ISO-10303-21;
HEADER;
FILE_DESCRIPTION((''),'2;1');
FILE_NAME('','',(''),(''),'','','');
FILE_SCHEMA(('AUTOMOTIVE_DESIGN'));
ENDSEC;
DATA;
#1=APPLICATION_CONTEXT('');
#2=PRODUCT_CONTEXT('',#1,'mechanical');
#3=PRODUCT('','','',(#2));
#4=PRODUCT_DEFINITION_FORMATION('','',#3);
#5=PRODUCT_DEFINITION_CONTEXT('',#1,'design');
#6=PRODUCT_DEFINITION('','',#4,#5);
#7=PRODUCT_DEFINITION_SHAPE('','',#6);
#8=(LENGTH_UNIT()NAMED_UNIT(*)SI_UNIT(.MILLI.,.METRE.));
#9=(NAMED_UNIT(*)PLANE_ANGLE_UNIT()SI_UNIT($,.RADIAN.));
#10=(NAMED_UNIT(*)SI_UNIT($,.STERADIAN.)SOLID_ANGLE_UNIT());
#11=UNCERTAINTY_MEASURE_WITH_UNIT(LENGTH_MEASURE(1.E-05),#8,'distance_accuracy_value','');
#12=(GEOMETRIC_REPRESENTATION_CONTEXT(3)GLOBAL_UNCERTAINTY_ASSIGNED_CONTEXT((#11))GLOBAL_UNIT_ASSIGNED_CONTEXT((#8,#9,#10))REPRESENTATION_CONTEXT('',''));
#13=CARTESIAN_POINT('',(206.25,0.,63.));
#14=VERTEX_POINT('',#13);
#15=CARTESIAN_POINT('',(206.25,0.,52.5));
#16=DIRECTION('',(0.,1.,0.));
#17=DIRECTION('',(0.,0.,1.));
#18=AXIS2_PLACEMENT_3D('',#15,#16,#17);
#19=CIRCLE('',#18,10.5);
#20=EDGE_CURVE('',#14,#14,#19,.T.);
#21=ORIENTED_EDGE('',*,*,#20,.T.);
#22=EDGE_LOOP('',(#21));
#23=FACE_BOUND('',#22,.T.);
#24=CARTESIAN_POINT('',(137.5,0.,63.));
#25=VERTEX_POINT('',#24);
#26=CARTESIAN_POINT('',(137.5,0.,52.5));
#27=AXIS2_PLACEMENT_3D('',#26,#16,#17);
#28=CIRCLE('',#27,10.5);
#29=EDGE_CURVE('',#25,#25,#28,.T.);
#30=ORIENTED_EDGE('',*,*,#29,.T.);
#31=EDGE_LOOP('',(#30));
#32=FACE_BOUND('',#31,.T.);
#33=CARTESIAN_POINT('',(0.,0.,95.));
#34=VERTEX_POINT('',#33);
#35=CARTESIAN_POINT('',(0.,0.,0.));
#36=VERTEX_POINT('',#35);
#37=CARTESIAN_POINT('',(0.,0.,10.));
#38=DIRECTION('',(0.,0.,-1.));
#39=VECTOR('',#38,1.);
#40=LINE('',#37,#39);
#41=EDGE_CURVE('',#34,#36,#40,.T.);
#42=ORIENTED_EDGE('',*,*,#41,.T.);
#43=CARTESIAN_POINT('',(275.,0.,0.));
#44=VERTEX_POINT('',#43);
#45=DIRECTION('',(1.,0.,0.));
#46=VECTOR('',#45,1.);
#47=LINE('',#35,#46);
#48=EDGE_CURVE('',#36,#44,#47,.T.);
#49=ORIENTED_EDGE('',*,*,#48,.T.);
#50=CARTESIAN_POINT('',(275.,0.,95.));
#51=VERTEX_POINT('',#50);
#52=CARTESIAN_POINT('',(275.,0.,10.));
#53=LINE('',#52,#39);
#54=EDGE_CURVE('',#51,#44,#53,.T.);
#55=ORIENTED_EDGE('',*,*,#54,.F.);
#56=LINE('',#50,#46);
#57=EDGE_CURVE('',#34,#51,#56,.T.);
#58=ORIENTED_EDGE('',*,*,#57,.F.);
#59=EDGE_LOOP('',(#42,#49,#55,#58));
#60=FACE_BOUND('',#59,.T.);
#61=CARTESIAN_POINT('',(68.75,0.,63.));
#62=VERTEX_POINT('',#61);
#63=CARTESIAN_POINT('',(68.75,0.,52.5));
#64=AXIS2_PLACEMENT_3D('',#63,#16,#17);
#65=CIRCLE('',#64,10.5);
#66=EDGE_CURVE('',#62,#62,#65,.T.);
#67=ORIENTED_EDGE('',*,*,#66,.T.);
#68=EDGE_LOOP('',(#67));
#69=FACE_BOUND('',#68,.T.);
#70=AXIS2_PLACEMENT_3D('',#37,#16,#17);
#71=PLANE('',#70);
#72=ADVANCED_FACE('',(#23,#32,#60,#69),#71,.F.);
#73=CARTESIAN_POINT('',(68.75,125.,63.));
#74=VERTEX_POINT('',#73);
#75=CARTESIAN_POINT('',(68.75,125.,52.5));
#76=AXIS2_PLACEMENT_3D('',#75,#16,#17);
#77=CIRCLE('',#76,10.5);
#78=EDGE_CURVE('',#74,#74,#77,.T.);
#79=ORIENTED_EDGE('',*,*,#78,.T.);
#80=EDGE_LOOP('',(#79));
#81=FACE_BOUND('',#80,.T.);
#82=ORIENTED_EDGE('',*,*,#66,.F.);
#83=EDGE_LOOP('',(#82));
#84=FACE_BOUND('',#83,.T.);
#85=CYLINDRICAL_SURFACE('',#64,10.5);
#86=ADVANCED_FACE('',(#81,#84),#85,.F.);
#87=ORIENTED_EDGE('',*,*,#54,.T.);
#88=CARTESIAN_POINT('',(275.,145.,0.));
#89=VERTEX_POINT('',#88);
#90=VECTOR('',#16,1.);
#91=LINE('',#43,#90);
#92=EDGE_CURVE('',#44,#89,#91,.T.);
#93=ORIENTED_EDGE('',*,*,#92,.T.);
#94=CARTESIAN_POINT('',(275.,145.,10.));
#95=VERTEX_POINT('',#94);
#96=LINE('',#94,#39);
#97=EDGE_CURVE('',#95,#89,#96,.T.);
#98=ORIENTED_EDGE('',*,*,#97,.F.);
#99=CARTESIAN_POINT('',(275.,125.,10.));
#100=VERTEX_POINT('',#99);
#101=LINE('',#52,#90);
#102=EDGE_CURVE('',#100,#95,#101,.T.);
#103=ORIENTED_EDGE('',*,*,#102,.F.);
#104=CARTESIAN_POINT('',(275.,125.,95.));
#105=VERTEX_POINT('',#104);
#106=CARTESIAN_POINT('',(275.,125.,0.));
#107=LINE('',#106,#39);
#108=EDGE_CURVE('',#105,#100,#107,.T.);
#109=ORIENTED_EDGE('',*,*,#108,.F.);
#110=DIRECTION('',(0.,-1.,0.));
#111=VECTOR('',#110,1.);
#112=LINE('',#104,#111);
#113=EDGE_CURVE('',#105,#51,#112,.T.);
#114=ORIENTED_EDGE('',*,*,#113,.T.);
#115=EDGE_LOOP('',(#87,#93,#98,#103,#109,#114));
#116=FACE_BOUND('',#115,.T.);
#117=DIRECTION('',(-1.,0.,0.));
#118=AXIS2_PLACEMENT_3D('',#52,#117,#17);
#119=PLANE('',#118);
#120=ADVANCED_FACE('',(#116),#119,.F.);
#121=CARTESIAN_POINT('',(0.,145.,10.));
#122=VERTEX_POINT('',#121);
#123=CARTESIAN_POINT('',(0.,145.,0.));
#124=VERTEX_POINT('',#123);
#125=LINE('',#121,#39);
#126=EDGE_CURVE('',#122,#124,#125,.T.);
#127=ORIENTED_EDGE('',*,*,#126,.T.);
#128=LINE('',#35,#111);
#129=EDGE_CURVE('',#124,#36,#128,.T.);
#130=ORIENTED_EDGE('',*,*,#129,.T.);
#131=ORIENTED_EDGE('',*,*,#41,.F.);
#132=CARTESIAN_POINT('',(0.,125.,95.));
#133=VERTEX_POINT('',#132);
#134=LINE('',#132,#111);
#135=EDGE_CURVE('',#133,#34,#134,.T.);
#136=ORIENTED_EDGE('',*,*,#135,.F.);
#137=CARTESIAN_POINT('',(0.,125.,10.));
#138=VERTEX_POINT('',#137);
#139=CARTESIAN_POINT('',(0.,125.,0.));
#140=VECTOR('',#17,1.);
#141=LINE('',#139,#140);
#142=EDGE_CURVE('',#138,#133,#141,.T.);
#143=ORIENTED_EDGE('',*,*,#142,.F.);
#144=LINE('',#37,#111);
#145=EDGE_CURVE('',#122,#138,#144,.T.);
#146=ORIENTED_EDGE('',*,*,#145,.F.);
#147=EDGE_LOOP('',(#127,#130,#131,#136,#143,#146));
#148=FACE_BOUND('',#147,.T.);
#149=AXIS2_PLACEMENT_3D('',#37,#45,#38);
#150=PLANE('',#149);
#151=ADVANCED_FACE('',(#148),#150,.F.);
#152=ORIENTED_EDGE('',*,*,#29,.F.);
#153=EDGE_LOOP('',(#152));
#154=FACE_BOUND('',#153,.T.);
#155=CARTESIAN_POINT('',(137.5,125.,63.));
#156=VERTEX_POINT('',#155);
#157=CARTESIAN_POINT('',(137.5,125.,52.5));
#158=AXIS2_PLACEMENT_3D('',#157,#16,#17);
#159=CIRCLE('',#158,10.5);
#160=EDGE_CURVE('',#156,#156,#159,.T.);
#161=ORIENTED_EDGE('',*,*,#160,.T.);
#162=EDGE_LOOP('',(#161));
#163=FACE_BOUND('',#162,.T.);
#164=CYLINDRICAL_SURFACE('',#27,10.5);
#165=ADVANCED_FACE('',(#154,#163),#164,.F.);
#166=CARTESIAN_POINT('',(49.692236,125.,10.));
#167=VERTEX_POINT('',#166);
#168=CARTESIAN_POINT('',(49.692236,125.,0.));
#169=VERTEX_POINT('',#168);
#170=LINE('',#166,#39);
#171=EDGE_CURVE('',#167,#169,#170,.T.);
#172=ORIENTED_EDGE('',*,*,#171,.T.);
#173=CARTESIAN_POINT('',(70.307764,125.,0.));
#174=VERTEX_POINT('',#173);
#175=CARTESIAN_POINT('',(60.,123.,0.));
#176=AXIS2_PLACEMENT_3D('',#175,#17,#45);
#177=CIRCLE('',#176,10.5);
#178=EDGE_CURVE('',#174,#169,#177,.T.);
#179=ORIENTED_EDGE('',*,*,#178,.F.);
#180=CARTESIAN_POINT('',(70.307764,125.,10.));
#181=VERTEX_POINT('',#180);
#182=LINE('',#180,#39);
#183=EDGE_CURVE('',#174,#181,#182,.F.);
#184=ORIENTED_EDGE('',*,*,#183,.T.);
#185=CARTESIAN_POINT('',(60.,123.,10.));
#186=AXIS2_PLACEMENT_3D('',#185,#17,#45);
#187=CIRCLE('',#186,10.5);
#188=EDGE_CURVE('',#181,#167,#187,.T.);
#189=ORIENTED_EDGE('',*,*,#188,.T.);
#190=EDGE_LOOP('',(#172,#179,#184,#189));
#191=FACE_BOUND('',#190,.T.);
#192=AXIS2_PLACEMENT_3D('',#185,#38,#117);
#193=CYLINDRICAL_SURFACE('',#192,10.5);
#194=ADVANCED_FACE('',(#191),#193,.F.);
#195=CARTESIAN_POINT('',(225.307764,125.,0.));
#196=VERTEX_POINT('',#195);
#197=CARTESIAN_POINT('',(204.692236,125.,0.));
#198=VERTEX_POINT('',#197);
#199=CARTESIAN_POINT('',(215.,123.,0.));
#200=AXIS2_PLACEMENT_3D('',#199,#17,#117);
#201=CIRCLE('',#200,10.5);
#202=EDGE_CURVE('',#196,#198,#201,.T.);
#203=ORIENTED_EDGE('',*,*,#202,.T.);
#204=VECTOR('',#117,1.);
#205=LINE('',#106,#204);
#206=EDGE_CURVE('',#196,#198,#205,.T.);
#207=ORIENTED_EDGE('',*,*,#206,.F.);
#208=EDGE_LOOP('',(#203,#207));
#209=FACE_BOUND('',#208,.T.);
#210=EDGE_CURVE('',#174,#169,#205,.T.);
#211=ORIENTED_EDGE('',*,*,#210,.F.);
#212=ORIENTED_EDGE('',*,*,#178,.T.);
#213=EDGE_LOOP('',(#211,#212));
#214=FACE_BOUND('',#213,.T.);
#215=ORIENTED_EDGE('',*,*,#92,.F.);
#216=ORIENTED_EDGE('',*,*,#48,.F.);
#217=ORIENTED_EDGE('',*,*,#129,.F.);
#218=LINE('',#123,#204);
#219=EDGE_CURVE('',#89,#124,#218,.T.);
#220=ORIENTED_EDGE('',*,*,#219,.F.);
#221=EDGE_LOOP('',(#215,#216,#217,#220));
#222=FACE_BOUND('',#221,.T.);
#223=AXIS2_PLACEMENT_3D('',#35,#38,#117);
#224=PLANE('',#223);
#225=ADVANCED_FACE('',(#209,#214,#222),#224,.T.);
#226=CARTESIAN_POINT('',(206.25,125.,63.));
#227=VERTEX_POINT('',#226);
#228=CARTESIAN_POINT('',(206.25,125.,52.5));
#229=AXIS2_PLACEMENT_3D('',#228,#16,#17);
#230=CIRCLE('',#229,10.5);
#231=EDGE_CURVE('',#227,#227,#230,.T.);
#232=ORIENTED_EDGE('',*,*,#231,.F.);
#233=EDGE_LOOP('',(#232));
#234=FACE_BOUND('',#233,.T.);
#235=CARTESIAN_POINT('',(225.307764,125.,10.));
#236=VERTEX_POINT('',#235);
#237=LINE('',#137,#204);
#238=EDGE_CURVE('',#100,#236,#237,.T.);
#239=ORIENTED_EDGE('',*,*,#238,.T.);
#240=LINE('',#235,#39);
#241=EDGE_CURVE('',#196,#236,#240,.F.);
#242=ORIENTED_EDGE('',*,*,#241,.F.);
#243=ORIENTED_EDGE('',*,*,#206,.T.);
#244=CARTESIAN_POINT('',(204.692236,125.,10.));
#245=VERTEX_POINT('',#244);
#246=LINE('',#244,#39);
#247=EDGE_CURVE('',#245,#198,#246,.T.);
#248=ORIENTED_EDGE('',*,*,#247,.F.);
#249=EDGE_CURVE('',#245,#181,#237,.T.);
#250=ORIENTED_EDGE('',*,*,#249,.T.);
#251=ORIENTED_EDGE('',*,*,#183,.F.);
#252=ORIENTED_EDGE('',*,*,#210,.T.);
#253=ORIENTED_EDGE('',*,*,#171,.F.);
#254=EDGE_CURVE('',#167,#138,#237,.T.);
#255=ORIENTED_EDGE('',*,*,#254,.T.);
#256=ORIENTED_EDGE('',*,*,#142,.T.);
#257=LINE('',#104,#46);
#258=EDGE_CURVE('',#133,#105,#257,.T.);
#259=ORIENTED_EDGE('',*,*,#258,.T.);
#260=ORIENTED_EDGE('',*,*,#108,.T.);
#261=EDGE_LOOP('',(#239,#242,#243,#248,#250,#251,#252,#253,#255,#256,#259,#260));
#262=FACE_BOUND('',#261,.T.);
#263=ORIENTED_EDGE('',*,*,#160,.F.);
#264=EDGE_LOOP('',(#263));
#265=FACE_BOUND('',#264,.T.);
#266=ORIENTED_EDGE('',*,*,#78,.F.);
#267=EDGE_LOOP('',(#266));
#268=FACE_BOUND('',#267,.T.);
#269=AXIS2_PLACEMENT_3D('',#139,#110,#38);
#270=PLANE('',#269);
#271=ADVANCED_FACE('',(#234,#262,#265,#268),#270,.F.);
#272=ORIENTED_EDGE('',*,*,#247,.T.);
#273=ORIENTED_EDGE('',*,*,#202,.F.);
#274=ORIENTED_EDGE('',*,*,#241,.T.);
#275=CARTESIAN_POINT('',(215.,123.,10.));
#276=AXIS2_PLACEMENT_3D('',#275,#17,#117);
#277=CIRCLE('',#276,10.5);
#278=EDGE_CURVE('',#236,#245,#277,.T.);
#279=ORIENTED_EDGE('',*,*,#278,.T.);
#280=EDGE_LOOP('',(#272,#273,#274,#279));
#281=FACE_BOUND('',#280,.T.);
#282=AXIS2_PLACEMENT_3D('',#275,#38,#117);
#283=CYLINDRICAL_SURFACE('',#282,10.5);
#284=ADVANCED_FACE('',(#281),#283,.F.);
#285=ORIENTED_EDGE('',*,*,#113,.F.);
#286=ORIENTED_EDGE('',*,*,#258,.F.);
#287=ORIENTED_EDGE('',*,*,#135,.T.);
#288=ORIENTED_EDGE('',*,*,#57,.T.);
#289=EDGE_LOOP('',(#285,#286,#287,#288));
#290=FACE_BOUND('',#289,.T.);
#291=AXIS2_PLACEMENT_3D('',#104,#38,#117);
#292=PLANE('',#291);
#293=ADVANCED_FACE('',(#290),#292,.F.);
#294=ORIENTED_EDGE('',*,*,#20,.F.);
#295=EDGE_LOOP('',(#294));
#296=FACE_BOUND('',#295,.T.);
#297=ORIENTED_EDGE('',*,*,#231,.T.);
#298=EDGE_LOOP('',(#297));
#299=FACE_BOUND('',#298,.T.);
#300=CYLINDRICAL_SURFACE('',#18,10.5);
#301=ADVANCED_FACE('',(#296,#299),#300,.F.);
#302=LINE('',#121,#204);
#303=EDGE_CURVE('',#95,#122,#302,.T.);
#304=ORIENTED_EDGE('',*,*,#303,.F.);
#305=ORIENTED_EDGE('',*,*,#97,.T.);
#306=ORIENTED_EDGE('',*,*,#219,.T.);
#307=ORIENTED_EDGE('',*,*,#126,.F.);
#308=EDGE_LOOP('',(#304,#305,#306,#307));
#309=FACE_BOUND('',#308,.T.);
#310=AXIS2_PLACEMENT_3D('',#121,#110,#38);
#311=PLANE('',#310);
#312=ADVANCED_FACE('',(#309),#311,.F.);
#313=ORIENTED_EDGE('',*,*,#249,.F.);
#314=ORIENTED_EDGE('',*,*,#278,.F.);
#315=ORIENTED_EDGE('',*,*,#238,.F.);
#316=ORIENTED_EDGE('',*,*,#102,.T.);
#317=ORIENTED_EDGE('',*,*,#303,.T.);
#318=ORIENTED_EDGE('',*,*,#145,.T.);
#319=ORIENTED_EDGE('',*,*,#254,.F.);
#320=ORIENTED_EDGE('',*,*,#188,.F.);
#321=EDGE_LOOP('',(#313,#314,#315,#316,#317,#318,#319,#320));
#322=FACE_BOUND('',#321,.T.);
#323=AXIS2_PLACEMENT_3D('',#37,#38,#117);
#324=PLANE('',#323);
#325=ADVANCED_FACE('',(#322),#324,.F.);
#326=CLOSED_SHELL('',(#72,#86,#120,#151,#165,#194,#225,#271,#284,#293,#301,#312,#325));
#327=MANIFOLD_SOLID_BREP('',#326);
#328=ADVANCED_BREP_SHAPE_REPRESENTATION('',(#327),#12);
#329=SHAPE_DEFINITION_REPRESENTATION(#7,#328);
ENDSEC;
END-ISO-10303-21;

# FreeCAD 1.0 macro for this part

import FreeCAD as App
import Part
import Sketcher
from FreeCAD import Vector
Q = App.Units.Quantity

doc = App.newDocument("Part")
params = doc.addObject("Spreadsheet::Sheet", "Params")
for row, (alias, value) in enumerate([
    ("sketch1_diameter", "16 mm"),
    ("sketch1_diameter2", "21 mm"),
    ("sketch1_width", "275 mm"),
    ("sketch1_height", "145 mm"),
    ("pad1_length", "10 mm"),
    ("sketch2_width", "275 mm"),
    ("sketch2_height", "95 mm"),
    ("pad2_length", "125 mm"),
    ("sketch3_diameter", "21 mm"),
], start=1):
    params.set(f"A{row}", alias)
    params.set(f"B{row}", "=" + value)
    params.setAlias(f"B{row}", alias)

body = doc.addObject("PartDesign::Body", "Body")

# Sketch on XY plane
sketch1 = body.newObject("Sketcher::SketchObject", "Sketch")
sketch1.AttachmentSupport = (doc.getObject("XY_Plane"), [""])
sketch1.MapMode = "FlatFace"
sketch1.addGeometry([
    Part.LineSegment(Vector(0, 145, 0), Vector(0, 0, 0)),  # 0
    Part.LineSegment(Vector(0, 0, 0), Vector(275, 0, 0)),  # 1
    Part.LineSegment(Vector(275, 0, 0), Vector(275, 145, 0)),  # 2
    Part.LineSegment(Vector(275, 145, 0), Vector(0, 145, 0)),  # 3
    Part.Circle(Vector(25, 85, 0), Vector(0, 0, 1), 8),  # 4
    Part.Circle(Vector(250, 85, 0), Vector(0, 0, 1), 8),  # 5
    Part.Circle(Vector(60, 123, 0), Vector(0, 0, 1), 10.5),  # 6
    Part.Circle(Vector(215, 123, 0), Vector(0, 0, 1), 10.5),  # 7
], False)
sketch1.addConstraint([
    Sketcher.Constraint("Coincident", 0, 2, 1, 1),
    Sketcher.Constraint("Coincident", 1, 2, 2, 1),
    Sketcher.Constraint("Coincident", 2, 2, 3, 1),
    Sketcher.Constraint("Coincident", 3, 2, 0, 1),
    Sketcher.Constraint("Vertical", 0),
    Sketcher.Constraint("Horizontal", 1),
    Sketcher.Constraint("Vertical", 2),
    Sketcher.Constraint("Horizontal", 3),
    Sketcher.Constraint("Coincident", 0, 2, -1, 1),
    Sketcher.Constraint("Equal", 4, 5),
    Sketcher.Constraint("Equal", 6, 7),
    Sketcher.Constraint("Horizontal", 4, 3, 5, 3),
    Sketcher.Constraint("Horizontal", 6, 3, 7, 3),
    Sketcher.Constraint("Diameter", 4, Q("16 mm")),
    Sketcher.Constraint("Diameter", 6, Q("21 mm")),
    Sketcher.Constraint("DistanceX", 1, 1, 1, 2, Q("275 mm")),
    Sketcher.Constraint("DistanceY", 0, 2, 0, 1, Q("145 mm")),
    Sketcher.Constraint("DistanceX", -1, 1, 4, 3, Q("25 mm")),
    Sketcher.Constraint("DistanceY", -1, 1, 4, 3, Q("85 mm")),
    Sketcher.Constraint("DistanceX", -1, 1, 5, 3, Q("250 mm")),
    Sketcher.Constraint("DistanceX", -1, 1, 6, 3, Q("60 mm")),
    Sketcher.Constraint("DistanceY", -1, 1, 6, 3, Q("123 mm")),
    Sketcher.Constraint("DistanceX", -1, 1, 7, 3, Q("215 mm")),
])
sketch1.setExpression("Constraints[13]", "Params.sketch1_diameter")
sketch1.setExpression("Constraints[14]", "Params.sketch1_diameter2")
sketch1.setExpression("Constraints[15]", "Params.sketch1_width")
sketch1.setExpression("Constraints[16]", "Params.sketch1_height")
pad1 = body.newObject("PartDesign::Pad", "Pad")
pad1.Profile = sketch1
pad1.setExpression("Length", "Params.pad1_length")

# Sketch on XZ plane
sketch2 = body.newObject("Sketcher::SketchObject", "Sketch001")
sketch2.AttachmentSupport = (doc.getObject("XZ_Plane"), [""])
sketch2.MapMode = "FlatFace"
sketch2.addGeometry([
    Part.LineSegment(Vector(0, 0, 0), Vector(0, 95, 0)),
    Part.LineSegment(Vector(0, 95, 0), Vector(275, 95, 0)),
    Part.LineSegment(Vector(275, 95, 0), Vector(275, 0, 0)),
    Part.LineSegment(Vector(275, 0, 0), Vector(0, 0, 0)),
], False)
sketch2.addConstraint([
    Sketcher.Constraint("Coincident", 0, 2, 1, 1),
    Sketcher.Constraint("Coincident", 1, 2, 2, 1),
    Sketcher.Constraint("Coincident", 2, 2, 3, 1),
    Sketcher.Constraint("Coincident", 3, 2, 0, 1),
    Sketcher.Constraint("Vertical", 0),
    Sketcher.Constraint("Horizontal", 1),
    Sketcher.Constraint("Vertical", 2),
    Sketcher.Constraint("Horizontal", 3),
    Sketcher.Constraint("Coincident", 3, 2, -1, 1),
    Sketcher.Constraint("DistanceX", 1, 1, 1, 2, Q("275 mm")),
    Sketcher.Constraint("DistanceY", 0, 1, 0, 2, Q("95 mm")),
])
sketch2.setExpression("Constraints[9]", "Params.sketch2_width")
sketch2.setExpression("Constraints[10]", "Params.sketch2_height")
pad2 = body.newObject("PartDesign::Pad", "Pad001")
pad2.Profile = sketch2
pad2.setExpression("Length", "Params.pad2_length")
pad2.Reversed = True

# Sketch on XZ plane
sketch3 = body.newObject("Sketcher::SketchObject", "Sketch002")
sketch3.AttachmentSupport = (doc.getObject("XZ_Plane"), [""])
sketch3.MapMode = "FlatFace"
sketch3.AttachmentOffset = App.Placement(Vector(0, 0, -125), App.Rotation())
sketch3.addGeometry([
    Part.Circle(Vector(206.25, 52.5, 0), Vector(0, 0, 1), 10.5),
    Part.Circle(Vector(137.5, 52.5, 0), Vector(0, 0, 1), 10.5),
    Part.Circle(Vector(68.75, 52.5, 0), Vector(0, 0, 1), 10.5),
], False)
sketch3.addConstraint([
    Sketcher.Constraint("Equal", 0, 1),
    Sketcher.Constraint("Equal", 1, 2),
    Sketcher.Constraint("Horizontal", 0, 3, 1, 3),
    Sketcher.Constraint("Horizontal", 1, 3, 2, 3),
    Sketcher.Constraint("Diameter", 0, Q("21 mm")),
    Sketcher.Constraint("DistanceY", -1, 1, 0, 3, Q("52.5 mm")),
    Sketcher.Constraint("DistanceX", -1, 1, 1, 3, Q("137.5 mm")),
    Sketcher.Constraint("DistanceX", 2, 3, 0, 3, Q("137.5 mm")),
    Sketcher.Constraint("DistanceX", -1, 1, 0, 3, Q("206.25 mm")),
])
sketch3.setExpression("Constraints[4]", "Params.sketch3_diameter")
pocket1 = body.newObject("PartDesign::Pocket", "Pocket")
pocket1.Profile = sketch3
pocket1.Type = "ThroughAll"
pocket1.Reversed = True

doc.recompute()
